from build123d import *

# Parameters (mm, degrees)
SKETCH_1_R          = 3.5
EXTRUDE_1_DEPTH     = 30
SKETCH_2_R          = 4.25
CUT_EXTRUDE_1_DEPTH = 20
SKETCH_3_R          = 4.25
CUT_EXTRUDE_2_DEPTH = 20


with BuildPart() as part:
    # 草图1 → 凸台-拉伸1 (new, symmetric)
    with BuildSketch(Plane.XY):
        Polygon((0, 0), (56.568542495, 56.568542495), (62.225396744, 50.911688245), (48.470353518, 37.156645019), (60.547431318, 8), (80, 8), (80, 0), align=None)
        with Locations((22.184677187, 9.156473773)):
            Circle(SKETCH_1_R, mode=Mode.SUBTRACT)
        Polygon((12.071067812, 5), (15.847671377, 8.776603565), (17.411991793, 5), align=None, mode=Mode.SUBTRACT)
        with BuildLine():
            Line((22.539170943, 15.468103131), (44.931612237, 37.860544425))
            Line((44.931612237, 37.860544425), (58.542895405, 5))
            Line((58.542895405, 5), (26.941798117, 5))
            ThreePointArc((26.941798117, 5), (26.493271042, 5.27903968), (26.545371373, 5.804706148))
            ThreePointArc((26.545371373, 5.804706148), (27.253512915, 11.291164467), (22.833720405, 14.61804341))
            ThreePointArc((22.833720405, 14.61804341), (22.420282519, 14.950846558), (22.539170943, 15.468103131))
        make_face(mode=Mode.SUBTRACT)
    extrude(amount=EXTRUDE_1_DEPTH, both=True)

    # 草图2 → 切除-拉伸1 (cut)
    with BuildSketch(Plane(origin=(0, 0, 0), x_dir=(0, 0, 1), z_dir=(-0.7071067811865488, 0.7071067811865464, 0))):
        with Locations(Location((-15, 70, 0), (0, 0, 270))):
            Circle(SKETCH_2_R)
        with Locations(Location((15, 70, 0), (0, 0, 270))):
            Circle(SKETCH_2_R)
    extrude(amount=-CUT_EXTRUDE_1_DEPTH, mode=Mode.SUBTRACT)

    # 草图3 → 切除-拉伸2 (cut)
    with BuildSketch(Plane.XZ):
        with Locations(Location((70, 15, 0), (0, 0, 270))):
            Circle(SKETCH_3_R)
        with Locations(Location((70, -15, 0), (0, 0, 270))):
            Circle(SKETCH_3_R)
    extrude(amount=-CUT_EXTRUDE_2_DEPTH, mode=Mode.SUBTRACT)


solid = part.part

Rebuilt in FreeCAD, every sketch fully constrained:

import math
import FreeCAD as App
import Part
import Sketcher

V = App.Vector
Q = App.Units.Quantity

doc = App.newDocument("Part")
params = doc.addObject("Spreadsheet::Sheet", "Params")
for row, (alias, value) in enumerate([
    ("sketch1_diameter", "7 mm"),
    ("sketch1_radius", "0.5 mm"),
    ("sketch1_radius2", "5.5 mm"),
    ("sketch1_width", "80 mm"),
    ("sketch1_height", "8 mm"),
    ("pad1_length", "60 mm"),
    ("sketch2_diameter", "8.5 mm"),
    ("pocket1_length", "20 mm"),
    ("sketch3_diameter", "8.5 mm"),
    ("pocket2_length", "20 mm"),
], start=1):
    params.set(f"A{row}", alias)
    params.set(f"B{row}", "=" + value)
    params.setAlias(f"B{row}", alias)

body = doc.addObject("PartDesign::Body", "Body")

# Sketch on XY plane
sketch1 = body.newObject("Sketcher::SketchObject", "Sketch")
sketch1.AttachmentSupport = (doc.getObject("XY_Plane"), [""])
sketch1.MapMode = "FlatFace"
sketch1.addGeometry(Part.LineSegment(V(56.6, 56.6, 0), V(0, 0, 0)), False)
sketch1.addGeometry(Part.LineSegment(V(0, 0, 0), V(80, 0, 0)), False)
sketch1.addGeometry(Part.LineSegment(V(80, 0, 0), V(80, 8, 0)), False)
sketch1.addGeometry(Part.LineSegment(V(80, 8, 0), V(60.5, 8, 0)), False)
sketch1.addGeometry(Part.LineSegment(V(60.5, 8, 0), V(48.5, 37.2, 0)), False)
sketch1.addGeometry(Part.LineSegment(V(48.5, 37.2, 0), V(62.2, 50.9, 0)), False)
sketch1.addGeometry(Part.LineSegment(V(62.2, 50.9, 0), V(56.6, 56.6, 0)), False)
sketch1.addGeometry(Part.LineSegment(V(12.1, 5, 0), V(15.8, 8.8, 0)), False)
sketch1.addGeometry(Part.LineSegment(V(15.8, 8.8, 0), V(17.4, 5, 0)), False)
sketch1.addGeometry(Part.LineSegment(V(17.4, 5, 0), V(12.1, 5, 0)), False)
sketch1.addGeometry(Part.Circle(V(22.2, 9.2, 0), V(0, 0, 1), 3.5), False)
sketch1.addGeometry(Part.LineSegment(V(22.5, 15.5, 0), V(44.9, 37.9, 0)), False)
sketch1.addGeometry(Part.LineSegment(V(44.9, 37.9, 0), V(58.5, 5, 0)), False)
sketch1.addGeometry(Part.LineSegment(V(58.5, 5, 0), V(26.9, 5, 0)), False)
sketch1.addGeometry(Part.ArcOfCircle(Part.Circle(V(26.9, 5.5, 0), V(0, 0, 1), 0.5), math.radians(142), math.radians(270)), False)
sketch1.addGeometry(Part.ArcOfCircle(Part.Circle(V(22.2, 9.2, 0), V(0, 0, 1), 5.5), math.radians(-38), math.radians(83)), False)
sketch1.addGeometry(Part.ArcOfCircle(Part.Circle(V(22.9, 15.1, 0), V(0, 0, 1), 0.5), math.radians(135), math.radians(263)), False)
sketch1.addConstraint(Sketcher.Constraint("Coincident", 0, 2, 1, 1))
sketch1.addConstraint(Sketcher.Constraint("Coincident", 1, 2, 2, 1))
sketch1.addConstraint(Sketcher.Constraint("Coincident", 2, 2, 3, 1))
sketch1.addConstraint(Sketcher.Constraint("Coincident", 3, 2, 4, 1))
sketch1.addConstraint(Sketcher.Constraint("Coincident", 4, 2, 5, 1))
sketch1.addConstraint(Sketcher.Constraint("Coincident", 5, 2, 6, 1))
sketch1.addConstraint(Sketcher.Constraint("Coincident", 6, 2, 0, 1))
sketch1.addConstraint(Sketcher.Constraint("Coincident", 7, 2, 8, 1))
sketch1.addConstraint(Sketcher.Constraint("Coincident", 8, 2, 9, 1))
sketch1.addConstraint(Sketcher.Constraint("Coincident", 9, 2, 7, 1))
sketch1.addConstraint(Sketcher.Constraint("Coincident", 11, 2, 12, 1))
sketch1.addConstraint(Sketcher.Constraint("Coincident", 12, 2, 13, 1))
sketch1.addConstraint(Sketcher.Constraint("Tangent", 13, 2, 14, 2))
sketch1.addConstraint(Sketcher.Constraint("Tangent", 14, 1, 15, 1))
sketch1.addConstraint(Sketcher.Constraint("Tangent", 15, 2, 16, 2))
sketch1.addConstraint(Sketcher.Constraint("Tangent", 16, 1, 11, 1))
sketch1.addConstraint(Sketcher.Constraint("Horizontal", 1))
sketch1.addConstraint(Sketcher.Constraint("Vertical", 2))
sketch1.addConstraint(Sketcher.Constraint("Horizontal", 3))
sketch1.addConstraint(Sketcher.Constraint("Horizontal", 9))
sketch1.addConstraint(Sketcher.Constraint("Horizontal", 13))
sketch1.addConstraint(Sketcher.Constraint("Coincident", 0, 2, -1, 1))
sketch1.addConstraint(Sketcher.Constraint("Coincident", 15, 3, 10, 3))
sketch1.addConstraint(Sketcher.Constraint("Equal", 14, 16))
sketch1.addConstraint(Sketcher.Constraint("Parallel", 0, 5))
sketch1.addConstraint(Sketcher.Constraint("Perpendicular", 5, 6))
sketch1.addConstraint(Sketcher.Constraint("Perpendicular", 6, 7))
sketch1.addConstraint(Sketcher.Constraint("Parallel", 4, 8))
sketch1.addConstraint(Sketcher.Constraint("Parallel", 7, 11))
sketch1.addConstraint(Sketcher.Constraint("Parallel", 8, 12))
sketch1.addConstraint(Sketcher.Constraint("Horizontal", 9, 2, 12, 2))
sketch1.addConstraint(Sketcher.Constraint("Diameter", 10, 7.0))
sketch1.addConstraint(Sketcher.Constraint("Radius", 14, 0.5))
sketch1.addConstraint(Sketcher.Constraint("Radius", 15, 5.5))
sketch1.addConstraint(Sketcher.Constraint("DistanceX", 1, 1, 1, 2, 80.0))
sketch1.addConstraint(Sketcher.Constraint("DistanceY", 2, 1, 2, 2, 8.0))
sketch1.addConstraint(Sketcher.Constraint("Angle", 0, Q("-135 deg")))
sketch1.addConstraint(Sketcher.Constraint("Distance", 0, 80.0))
sketch1.addConstraint(Sketcher.Constraint("Distance", 6, 8.0))
sketch1.addConstraint(Sketcher.Constraint("DistanceY", -1, 1, 8, 2, 5.0))
sketch1.addConstraint(Sketcher.Constraint("Angle", 4, Q("112.5 deg")))
sketch1.addConstraint(Sketcher.Constraint("DistanceY", 11, 2, 6, 2, 18.707998))
sketch1.addConstraint(Sketcher.Constraint("DistanceX", 3, 2, 3, 1, 19.452569))
sketch1.addConstraint(Sketcher.Constraint("DistanceX", -1, 1, 14, 3, 26.941798))
sketch1.addConstraint(Sketcher.Constraint("DistanceX", 7, 2, 16, 1, 6.6915))
sketch1.addConstraint(Sketcher.Constraint("DistanceY", 7, 2, 16, 1, 6.6915))
sketch1.addConstraint(Sketcher.Constraint("DistanceX", 9, 2, 9, 1, 5.340924))
sketch1.addConstraint(Sketcher.Constraint("DistanceX", 13, 2, 13, 1, 31.601097))
sketch1.setExpression("Constraints[31]", "Params.sketch1_diameter")
sketch1.setExpression("Constraints[32]", "Params.sketch1_radius")
sketch1.setExpression("Constraints[33]", "Params.sketch1_radius2")
sketch1.setExpression("Constraints[34]", "Params.sketch1_width")
sketch1.setExpression("Constraints[35]", "Params.sketch1_height")
pad1 = body.newObject("PartDesign::Pad", "Pad")
pad1.Profile = sketch1
pad1.setExpression("Length", "Params.pad1_length")
pad1.Midplane = True

# Sketch on an angled plane
sketch2 = body.newObject("Sketcher::SketchObject", "Sketch001")
sketch2.Placement = App.Placement(V(0, 0, 0), App.Rotation(V(0, 0, 1), V(0.707106781, 0.707106781, 0), V(-0.707106781, 0.707106781, 0), "ZXY"))
sketch2.addGeometry(Part.Circle(V(-15, 70, 0), V(0, 0, 1), 4.2), False)
sketch2.addGeometry(Part.Circle(V(15, 70, 0), V(0, 0, 1), 4.2), False)
sketch2.addConstraint(Sketcher.Constraint("Equal", 0, 1))
sketch2.addConstraint(Sketcher.Constraint("Symmetric", 0, 3, 1, 3, -2))
sketch2.addConstraint(Sketcher.Constraint("Diameter", 0, 8.5))
sketch2.addConstraint(Sketcher.Constraint("DistanceX", 0, 3, -1, 1, 15.0))
sketch2.addConstraint(Sketcher.Constraint("DistanceY", -1, 1, 0, 3, 70.0))
sketch2.setExpression("Constraints[2]", "Params.sketch2_diameter")
pocket1 = body.newObject("PartDesign::Pocket", "Pocket")
pocket1.Profile = sketch2
pocket1.setExpression("Length", "Params.pocket1_length")

# Sketch on XZ plane
sketch3 = body.newObject("Sketcher::SketchObject", "Sketch002")
sketch3.AttachmentSupport = (doc.getObject("XZ_Plane"), [""])
sketch3.MapMode = "FlatFace"
sketch3.addGeometry(Part.Circle(V(70, 15, 0), V(0, 0, 1), 4.2), False)
sketch3.addGeometry(Part.Circle(V(70, -15, 0), V(0, 0, 1), 4.2), False)
sketch3.addConstraint(Sketcher.Constraint("Equal", 0, 1))
sketch3.addConstraint(Sketcher.Constraint("Symmetric", 0, 3, 1, 3, -1))
sketch3.addConstraint(Sketcher.Constraint("Diameter", 0, 8.5))
sketch3.addConstraint(Sketcher.Constraint("DistanceX", -1, 1, 0, 3, 70.0))
sketch3.addConstraint(Sketcher.Constraint("DistanceY", -1, 1, 0, 3, 15.0))
sketch3.setExpression("Constraints[2]", "Params.sketch3_diameter")
pocket2 = body.newObject("PartDesign::Pocket", "Pocket001")
pocket2.Profile = sketch3
pocket2.setExpression("Length", "Params.pocket2_length")

doc.recompute()
